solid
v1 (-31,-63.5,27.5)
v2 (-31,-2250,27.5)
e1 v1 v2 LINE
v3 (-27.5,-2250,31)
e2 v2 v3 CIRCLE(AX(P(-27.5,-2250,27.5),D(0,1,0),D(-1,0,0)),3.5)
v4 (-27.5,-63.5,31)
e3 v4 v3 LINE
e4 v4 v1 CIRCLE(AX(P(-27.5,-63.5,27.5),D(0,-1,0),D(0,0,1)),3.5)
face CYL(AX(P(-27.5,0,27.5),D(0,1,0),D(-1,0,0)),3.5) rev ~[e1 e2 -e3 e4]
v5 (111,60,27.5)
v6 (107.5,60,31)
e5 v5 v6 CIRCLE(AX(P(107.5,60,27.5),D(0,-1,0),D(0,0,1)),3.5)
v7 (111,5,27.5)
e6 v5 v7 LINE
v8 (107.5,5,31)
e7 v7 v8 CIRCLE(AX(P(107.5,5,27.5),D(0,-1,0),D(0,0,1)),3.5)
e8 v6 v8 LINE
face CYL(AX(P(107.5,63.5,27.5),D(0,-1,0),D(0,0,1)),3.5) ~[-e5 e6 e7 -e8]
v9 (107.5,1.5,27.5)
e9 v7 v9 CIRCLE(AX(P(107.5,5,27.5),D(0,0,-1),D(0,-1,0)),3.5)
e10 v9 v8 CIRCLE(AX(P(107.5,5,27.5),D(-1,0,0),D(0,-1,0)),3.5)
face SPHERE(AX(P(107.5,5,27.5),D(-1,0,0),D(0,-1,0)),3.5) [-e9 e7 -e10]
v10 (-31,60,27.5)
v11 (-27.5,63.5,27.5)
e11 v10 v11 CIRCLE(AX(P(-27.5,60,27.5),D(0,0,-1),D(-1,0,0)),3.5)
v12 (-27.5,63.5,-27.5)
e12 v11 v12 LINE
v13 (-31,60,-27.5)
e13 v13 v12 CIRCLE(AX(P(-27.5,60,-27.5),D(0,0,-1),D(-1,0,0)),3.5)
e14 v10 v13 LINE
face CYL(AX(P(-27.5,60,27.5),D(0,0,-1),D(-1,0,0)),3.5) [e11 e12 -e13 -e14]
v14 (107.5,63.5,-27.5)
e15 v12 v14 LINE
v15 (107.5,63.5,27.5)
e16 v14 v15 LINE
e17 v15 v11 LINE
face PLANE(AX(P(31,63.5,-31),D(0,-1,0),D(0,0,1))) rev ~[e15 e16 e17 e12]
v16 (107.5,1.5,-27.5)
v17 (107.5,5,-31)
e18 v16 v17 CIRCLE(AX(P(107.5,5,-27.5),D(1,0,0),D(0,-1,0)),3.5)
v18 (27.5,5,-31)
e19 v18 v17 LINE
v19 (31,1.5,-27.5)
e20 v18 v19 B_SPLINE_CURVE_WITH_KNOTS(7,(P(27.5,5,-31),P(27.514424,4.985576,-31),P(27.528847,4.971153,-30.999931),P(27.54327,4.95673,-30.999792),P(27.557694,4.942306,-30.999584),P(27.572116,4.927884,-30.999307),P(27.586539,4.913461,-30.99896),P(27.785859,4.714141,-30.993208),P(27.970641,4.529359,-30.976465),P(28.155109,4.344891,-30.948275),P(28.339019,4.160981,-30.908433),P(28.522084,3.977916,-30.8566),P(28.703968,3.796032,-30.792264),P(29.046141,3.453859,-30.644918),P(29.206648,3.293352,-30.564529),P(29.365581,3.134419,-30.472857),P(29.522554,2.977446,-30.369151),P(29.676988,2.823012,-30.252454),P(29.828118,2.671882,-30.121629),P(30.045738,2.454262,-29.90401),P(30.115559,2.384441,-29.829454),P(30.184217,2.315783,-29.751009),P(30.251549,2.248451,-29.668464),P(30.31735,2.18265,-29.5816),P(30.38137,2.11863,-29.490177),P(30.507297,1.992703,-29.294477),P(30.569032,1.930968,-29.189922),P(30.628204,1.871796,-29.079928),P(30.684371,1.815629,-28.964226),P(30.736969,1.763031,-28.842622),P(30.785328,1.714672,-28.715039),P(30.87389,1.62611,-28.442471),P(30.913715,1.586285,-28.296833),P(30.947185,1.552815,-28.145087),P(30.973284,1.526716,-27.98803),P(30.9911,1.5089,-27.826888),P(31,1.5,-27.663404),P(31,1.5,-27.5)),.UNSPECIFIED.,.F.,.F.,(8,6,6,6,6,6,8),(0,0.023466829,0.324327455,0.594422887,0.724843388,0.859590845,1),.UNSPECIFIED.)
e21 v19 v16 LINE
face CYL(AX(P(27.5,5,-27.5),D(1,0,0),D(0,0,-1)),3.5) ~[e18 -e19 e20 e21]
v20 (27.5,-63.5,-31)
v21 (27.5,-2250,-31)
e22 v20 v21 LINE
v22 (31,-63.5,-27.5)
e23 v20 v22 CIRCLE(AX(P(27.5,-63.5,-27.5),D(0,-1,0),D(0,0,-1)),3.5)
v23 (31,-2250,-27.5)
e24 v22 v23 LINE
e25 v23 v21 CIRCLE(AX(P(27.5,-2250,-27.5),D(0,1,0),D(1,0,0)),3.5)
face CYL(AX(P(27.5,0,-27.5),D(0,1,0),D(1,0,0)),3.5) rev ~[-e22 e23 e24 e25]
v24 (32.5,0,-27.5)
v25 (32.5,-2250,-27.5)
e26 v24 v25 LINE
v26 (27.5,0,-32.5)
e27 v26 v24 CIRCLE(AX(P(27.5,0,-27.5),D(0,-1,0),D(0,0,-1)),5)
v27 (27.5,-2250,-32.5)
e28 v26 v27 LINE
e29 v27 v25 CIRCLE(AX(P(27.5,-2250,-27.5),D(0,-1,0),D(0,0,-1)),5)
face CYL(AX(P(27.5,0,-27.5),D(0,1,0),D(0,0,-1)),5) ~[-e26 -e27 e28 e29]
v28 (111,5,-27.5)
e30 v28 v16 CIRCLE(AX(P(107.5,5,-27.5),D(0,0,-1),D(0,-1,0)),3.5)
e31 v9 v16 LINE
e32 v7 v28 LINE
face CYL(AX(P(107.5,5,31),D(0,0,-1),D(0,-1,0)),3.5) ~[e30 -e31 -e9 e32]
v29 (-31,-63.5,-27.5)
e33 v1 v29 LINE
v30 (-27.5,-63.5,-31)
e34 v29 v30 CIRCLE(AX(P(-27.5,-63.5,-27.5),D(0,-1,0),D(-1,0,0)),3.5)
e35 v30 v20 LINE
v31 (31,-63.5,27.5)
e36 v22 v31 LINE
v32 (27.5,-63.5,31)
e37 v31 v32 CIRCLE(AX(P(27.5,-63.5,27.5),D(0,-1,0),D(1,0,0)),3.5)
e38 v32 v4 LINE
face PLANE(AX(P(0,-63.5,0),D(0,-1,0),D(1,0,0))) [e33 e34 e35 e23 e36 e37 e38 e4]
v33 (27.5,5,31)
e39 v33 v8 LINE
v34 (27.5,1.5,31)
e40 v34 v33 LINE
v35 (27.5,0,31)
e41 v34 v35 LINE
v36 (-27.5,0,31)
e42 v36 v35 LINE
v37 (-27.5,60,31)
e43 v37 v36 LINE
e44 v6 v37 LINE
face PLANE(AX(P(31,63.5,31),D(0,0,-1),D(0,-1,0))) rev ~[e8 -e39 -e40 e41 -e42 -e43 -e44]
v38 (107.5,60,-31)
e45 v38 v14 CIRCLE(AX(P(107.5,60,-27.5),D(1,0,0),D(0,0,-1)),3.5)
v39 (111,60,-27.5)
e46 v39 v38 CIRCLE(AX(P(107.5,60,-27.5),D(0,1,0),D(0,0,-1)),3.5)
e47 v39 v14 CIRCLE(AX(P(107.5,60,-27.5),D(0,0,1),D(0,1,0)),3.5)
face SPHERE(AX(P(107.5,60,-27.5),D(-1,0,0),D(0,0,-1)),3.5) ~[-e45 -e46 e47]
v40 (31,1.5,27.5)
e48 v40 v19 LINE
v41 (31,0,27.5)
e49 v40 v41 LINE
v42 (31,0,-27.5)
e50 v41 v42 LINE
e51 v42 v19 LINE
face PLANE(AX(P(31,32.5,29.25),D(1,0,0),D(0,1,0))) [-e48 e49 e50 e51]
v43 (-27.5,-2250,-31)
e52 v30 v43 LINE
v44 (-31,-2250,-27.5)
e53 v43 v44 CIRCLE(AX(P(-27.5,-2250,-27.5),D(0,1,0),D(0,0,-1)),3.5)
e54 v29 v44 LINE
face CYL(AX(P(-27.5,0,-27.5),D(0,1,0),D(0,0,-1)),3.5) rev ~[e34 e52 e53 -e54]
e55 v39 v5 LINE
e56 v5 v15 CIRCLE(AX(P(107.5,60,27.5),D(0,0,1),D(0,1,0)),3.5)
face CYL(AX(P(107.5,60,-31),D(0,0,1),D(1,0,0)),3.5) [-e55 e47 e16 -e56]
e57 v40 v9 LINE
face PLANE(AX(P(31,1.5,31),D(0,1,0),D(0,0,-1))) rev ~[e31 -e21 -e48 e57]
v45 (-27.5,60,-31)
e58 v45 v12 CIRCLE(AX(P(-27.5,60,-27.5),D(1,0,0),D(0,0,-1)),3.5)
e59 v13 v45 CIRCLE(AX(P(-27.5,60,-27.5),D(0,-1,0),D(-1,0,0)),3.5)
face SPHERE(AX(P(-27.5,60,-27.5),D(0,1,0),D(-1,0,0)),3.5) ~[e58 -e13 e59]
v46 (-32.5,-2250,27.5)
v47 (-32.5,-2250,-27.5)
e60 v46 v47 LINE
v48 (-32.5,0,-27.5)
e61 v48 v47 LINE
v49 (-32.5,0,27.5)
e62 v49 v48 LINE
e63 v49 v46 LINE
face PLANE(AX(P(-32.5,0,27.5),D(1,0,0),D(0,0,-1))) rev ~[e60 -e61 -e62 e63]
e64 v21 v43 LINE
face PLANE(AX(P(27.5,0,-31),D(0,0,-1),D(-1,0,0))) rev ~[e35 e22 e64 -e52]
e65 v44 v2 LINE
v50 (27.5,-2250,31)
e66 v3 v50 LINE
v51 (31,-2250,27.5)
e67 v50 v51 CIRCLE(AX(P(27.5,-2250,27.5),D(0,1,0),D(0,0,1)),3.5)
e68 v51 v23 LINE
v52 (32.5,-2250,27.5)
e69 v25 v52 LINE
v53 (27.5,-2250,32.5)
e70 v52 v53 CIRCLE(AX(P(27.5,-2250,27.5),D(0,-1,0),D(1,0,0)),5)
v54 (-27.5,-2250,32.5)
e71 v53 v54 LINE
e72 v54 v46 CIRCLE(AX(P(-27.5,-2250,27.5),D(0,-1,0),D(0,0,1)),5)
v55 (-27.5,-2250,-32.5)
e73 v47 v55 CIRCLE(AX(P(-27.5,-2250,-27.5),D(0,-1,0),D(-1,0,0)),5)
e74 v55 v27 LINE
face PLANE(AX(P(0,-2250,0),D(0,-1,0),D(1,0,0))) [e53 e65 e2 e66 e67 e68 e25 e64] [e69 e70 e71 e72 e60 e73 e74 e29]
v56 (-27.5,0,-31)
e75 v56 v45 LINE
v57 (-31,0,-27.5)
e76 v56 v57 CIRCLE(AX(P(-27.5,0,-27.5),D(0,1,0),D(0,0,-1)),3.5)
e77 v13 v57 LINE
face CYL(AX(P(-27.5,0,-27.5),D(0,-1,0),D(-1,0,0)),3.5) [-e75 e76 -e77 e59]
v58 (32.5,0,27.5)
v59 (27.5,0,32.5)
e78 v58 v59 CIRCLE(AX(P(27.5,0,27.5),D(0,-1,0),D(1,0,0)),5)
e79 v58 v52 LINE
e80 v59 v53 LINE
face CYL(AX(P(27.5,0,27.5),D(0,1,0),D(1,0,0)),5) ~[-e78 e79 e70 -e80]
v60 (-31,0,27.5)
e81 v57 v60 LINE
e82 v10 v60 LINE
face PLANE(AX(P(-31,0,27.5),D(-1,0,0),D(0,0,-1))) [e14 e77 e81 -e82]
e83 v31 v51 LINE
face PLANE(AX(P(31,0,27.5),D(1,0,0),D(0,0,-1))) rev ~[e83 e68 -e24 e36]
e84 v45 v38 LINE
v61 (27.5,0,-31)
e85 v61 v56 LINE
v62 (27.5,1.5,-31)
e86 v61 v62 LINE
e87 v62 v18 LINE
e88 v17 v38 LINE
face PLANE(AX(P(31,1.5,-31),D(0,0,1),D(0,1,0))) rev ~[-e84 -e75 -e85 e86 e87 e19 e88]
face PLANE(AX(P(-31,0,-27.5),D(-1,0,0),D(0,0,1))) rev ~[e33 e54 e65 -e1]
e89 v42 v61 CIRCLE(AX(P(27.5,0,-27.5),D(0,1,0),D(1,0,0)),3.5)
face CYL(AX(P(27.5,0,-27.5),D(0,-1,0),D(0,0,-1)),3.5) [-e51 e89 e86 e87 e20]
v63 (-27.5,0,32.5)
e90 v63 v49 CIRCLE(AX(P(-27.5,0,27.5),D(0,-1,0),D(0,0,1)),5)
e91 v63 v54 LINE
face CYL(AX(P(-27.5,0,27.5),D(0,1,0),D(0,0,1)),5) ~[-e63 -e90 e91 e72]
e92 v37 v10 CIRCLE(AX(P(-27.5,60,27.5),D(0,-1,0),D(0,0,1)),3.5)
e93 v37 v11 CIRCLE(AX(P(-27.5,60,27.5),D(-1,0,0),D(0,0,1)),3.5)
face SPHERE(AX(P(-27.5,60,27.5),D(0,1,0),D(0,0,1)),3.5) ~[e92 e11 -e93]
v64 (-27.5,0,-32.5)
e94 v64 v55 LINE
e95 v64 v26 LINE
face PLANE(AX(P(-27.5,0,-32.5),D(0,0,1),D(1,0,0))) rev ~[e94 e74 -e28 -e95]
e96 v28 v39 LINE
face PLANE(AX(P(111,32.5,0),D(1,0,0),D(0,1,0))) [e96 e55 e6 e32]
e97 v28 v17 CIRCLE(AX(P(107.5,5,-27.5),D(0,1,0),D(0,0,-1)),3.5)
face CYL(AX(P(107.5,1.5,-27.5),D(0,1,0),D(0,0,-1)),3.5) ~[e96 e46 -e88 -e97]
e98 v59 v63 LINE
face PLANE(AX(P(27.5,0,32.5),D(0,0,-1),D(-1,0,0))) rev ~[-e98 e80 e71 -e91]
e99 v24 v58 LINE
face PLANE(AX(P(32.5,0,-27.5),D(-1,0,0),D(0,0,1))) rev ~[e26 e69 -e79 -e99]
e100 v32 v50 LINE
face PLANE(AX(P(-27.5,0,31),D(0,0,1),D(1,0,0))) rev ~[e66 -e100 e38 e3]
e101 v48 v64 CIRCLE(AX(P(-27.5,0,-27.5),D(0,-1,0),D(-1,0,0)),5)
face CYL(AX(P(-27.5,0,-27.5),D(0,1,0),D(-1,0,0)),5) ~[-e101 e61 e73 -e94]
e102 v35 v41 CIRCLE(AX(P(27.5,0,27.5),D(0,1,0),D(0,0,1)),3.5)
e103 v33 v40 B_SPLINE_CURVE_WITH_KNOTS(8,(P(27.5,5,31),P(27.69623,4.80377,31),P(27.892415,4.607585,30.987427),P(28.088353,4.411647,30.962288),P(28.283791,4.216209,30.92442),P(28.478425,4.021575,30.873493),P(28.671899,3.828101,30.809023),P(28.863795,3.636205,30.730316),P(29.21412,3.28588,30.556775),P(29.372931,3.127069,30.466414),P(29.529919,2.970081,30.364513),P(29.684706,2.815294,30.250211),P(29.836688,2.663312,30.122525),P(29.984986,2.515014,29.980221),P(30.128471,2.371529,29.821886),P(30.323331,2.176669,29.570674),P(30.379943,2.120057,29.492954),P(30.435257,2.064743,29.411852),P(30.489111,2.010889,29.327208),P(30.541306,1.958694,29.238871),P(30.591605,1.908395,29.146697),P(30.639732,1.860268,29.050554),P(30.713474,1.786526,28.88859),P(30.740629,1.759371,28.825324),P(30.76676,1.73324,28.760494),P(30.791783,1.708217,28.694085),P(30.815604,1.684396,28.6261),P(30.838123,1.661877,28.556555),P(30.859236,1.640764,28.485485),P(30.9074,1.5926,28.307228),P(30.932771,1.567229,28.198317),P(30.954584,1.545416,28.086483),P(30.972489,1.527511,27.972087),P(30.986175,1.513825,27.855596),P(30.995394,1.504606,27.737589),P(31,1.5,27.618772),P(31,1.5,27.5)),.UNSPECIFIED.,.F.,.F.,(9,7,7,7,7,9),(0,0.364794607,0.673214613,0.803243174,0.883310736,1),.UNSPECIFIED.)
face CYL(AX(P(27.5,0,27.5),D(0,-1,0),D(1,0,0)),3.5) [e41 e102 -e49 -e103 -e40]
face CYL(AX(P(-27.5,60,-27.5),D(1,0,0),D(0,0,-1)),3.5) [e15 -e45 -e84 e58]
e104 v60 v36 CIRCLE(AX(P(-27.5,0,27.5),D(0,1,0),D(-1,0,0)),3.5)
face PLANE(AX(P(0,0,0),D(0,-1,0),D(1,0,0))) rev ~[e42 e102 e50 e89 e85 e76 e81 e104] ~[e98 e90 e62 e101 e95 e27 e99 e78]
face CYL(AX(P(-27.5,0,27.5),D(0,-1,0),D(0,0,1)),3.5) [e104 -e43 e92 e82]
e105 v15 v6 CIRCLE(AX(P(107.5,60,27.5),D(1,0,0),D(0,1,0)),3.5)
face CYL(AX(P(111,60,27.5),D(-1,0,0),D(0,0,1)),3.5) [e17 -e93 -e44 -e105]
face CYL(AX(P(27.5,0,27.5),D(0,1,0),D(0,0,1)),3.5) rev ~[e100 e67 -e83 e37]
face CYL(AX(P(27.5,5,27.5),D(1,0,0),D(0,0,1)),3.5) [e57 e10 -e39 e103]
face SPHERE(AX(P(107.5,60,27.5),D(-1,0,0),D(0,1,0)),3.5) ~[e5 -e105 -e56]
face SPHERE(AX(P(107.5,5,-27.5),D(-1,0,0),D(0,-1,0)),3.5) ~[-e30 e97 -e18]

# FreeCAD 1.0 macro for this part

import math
import FreeCAD as App
import Part
import Sketcher

V = App.Vector


def edges_at(feature, points):
    """Names of the edges that pass closest to the given points."""
    edges = feature.Shape.Edges
    near = lambda p: min(range(len(edges)), key=lambda i: edges[i].distToShape(Part.Vertex(*p))[0])
    return sorted({f"Edge{near(p) + 1}" for p in points})

doc = App.newDocument("Part")
body = doc.addObject("PartDesign::Body", "Body")

# Sketch on XZ plane
sketch1 = body.newObject("Sketcher::SketchObject", "Sketch")
sketch1.AttachmentSupport = (doc.getObject("XZ_Plane"), [""])
sketch1.MapMode = "FlatFace"
sketch1.addGeometry([
    Part.ArcOfCircle(Part.Circle(V(27.5, 27.5, 0), V(0, 0, 1), 5), math.radians(0), math.radians(90)),  # 0
    Part.LineSegment(V(27.5, 32.5, 0), V(-27.5, 32.5, 0)),  # 1
    Part.ArcOfCircle(Part.Circle(V(-27.5, 27.5, 0), V(0, 0, 1), 5), math.radians(90), math.radians(180)),  # 2
    Part.LineSegment(V(-32.5, 27.5, 0), V(-32.5, -27.5, 0)),  # 3
    Part.ArcOfCircle(Part.Circle(V(-27.5, -27.5, 0), V(0, 0, 1), 5), math.radians(180), math.radians(270)),  # 4
    Part.LineSegment(V(-27.5, -32.5, 0), V(27.5, -32.5, 0)),  # 5
    Part.ArcOfCircle(Part.Circle(V(27.5, -27.5, 0), V(0, 0, 1), 5), math.radians(-90), math.radians(0)),  # 6
    Part.LineSegment(V(32.5, -27.5, 0), V(32.5, 27.5, 0)),  # 7
    Part.LineSegment(V(-27.5, 31, 0), V(27.5, 31, 0)),  # 8
    Part.ArcOfCircle(Part.Circle(V(27.5, 27.5, 0), V(0, 0, 1), 3.5), math.radians(0), math.radians(90)),  # 9
    Part.LineSegment(V(31, 27.5, 0), V(31, -27.5, 0)),  # 10
    Part.ArcOfCircle(Part.Circle(V(27.5, -27.5, 0), V(0, 0, 1), 3.5), math.radians(-90), math.radians(0)),  # 11
    Part.LineSegment(V(27.5, -31, 0), V(-27.5, -31, 0)),  # 12
    Part.ArcOfCircle(Part.Circle(V(-27.5, -27.5, 0), V(0, 0, 1), 3.5), math.radians(180), math.radians(270)),  # 13
    Part.LineSegment(V(-31, -27.5, 0), V(-31, 27.5, 0)),  # 14
    Part.ArcOfCircle(Part.Circle(V(-27.5, 27.5, 0), V(0, 0, 1), 3.5), math.radians(90), math.radians(180)),  # 15
], False)
sketch1.addConstraint([
    Sketcher.Constraint("Tangent", 0, 2, 1, 1),
    Sketcher.Constraint("Tangent", 1, 2, 2, 1),
    Sketcher.Constraint("Tangent", 2, 2, 3, 1),
    Sketcher.Constraint("Tangent", 3, 2, 4, 1),
    Sketcher.Constraint("Tangent", 4, 2, 5, 1),
    Sketcher.Constraint("Tangent", 5, 2, 6, 1),
    Sketcher.Constraint("Tangent", 6, 2, 7, 1),
    Sketcher.Constraint("Tangent", 7, 2, 0, 1),
    Sketcher.Constraint("Tangent", 8, 2, 9, 2),
    Sketcher.Constraint("Tangent", 9, 1, 10, 1),
    Sketcher.Constraint("Tangent", 10, 2, 11, 2),
    Sketcher.Constraint("Tangent", 11, 1, 12, 1),
    Sketcher.Constraint("Tangent", 12, 2, 13, 2),
    Sketcher.Constraint("Tangent", 13, 1, 14, 1),
    Sketcher.Constraint("Tangent", 14, 2, 15, 2),
    Sketcher.Constraint("Tangent", 15, 1, 8, 1),
    Sketcher.Constraint("Horizontal", 1),
    Sketcher.Constraint("Vertical", 3),
    Sketcher.Constraint("Horizontal", 5),
    Sketcher.Constraint("Vertical", 7),
    Sketcher.Constraint("Horizontal", 8),
    Sketcher.Constraint("Vertical", 10),
    Sketcher.Constraint("Horizontal", 12),
    Sketcher.Constraint("Vertical", 14),
    Sketcher.Constraint("Coincident", 9, 3, 0, 3),
    Sketcher.Constraint("Coincident", 11, 3, 6, 3),
    Sketcher.Constraint("Coincident", 13, 3, 4, 3),
    Sketcher.Constraint("Equal", 0, 2),
    Sketcher.Constraint("Equal", 2, 4),
    Sketcher.Constraint("Equal", 4, 6),
    Sketcher.Constraint("Equal", 13, 15),
    Sketcher.Constraint("Symmetric", 0, 3, 4, 3, -1, 1),
    Sketcher.Constraint("Equal", 12, 3),
    Sketcher.Constraint("Radius", 0, 5.0),
    Sketcher.Constraint("Radius", 9, 3.5),
    Sketcher.Constraint("DistanceX", 1, 2, 1, 1, 55.0),
])
pad1 = body.newObject("PartDesign::Pad", "Pad")
pad1.Profile = sketch1
pad1.Length = 2250

# Sketch on XZ plane
sketch2 = body.newObject("Sketcher::SketchObject", "Sketch001")
sketch2.AttachmentSupport = (doc.getObject("XZ_Plane"), [""])
sketch2.MapMode = "FlatFace"
sketch2.addGeometry([
    Part.LineSegment(V(31, -27.5, 0), V(31, 27.5, 0)),  # 0
    Part.ArcOfCircle(Part.Circle(V(27.5, 27.5, 0), V(0, 0, 1), 3.5), math.radians(0), math.radians(90)),  # 1
    Part.LineSegment(V(27.5, 31, 0), V(-27.5, 31, 0)),  # 2
    Part.ArcOfCircle(Part.Circle(V(-27.5, 27.5, 0), V(0, 0, 1), 3.5), math.radians(90), math.radians(180)),  # 3
    Part.LineSegment(V(-31, 27.5, 0), V(-31, -27.5, 0)),  # 4
    Part.ArcOfCircle(Part.Circle(V(-27.5, -27.5, 0), V(0, 0, 1), 3.5), math.radians(180), math.radians(270)),  # 5
    Part.LineSegment(V(-27.5, -31, 0), V(27.5, -31, 0)),  # 6
    Part.ArcOfCircle(Part.Circle(V(27.5, -27.5, 0), V(0, 0, 1), 3.5), math.radians(-90), math.radians(0)),  # 7
], False)
sketch2.addConstraint([
    Sketcher.Constraint("Tangent", 0, 2, 1, 1),
    Sketcher.Constraint("Tangent", 1, 2, 2, 1),
    Sketcher.Constraint("Tangent", 2, 2, 3, 1),
    Sketcher.Constraint("Tangent", 3, 2, 4, 1),
    Sketcher.Constraint("Tangent", 4, 2, 5, 1),
    Sketcher.Constraint("Tangent", 5, 2, 6, 1),
    Sketcher.Constraint("Tangent", 6, 2, 7, 1),
    Sketcher.Constraint("Tangent", 7, 2, 0, 1),
    Sketcher.Constraint("Vertical", 0),
    Sketcher.Constraint("Horizontal", 2),
    Sketcher.Constraint("Vertical", 4),
    Sketcher.Constraint("Horizontal", 6),
    Sketcher.Constraint("Equal", 1, 3),
    Sketcher.Constraint("Equal", 3, 5),
    Sketcher.Constraint("Equal", 5, 7),
    Sketcher.Constraint("Symmetric", 1, 3, 5, 3, -1, 1),
    Sketcher.Constraint("Equal", 6, 0),
    Sketcher.Constraint("Radius", 1, 3.5),
    Sketcher.Constraint("DistanceX", 2, 2, 2, 1, 55.0),
])
pad2 = body.newObject("PartDesign::Pad", "Pad001")
pad2.Profile = sketch2
pad2.Length = 127
pad2.Midplane = True

# Sketch on YZ plane
sketch3 = body.newObject("Sketcher::SketchObject", "Sketch002")
sketch3.AttachmentSupport = (doc.getObject("YZ_Plane"), [""])
sketch3.MapMode = "FlatFace"
sketch3.AttachmentOffset = App.Placement(V(0, 0, 31), App.Rotation())
sketch3.addGeometry([
    Part.LineSegment(V(2, 31, 0), V(2, -31, 0)),
    Part.LineSegment(V(2, -31, 0), V(64, -31, 0)),
    Part.LineSegment(V(64, -31, 0), V(64, 31, 0)),
    Part.LineSegment(V(64, 31, 0), V(2, 31, 0)),
], False)
sketch3.addConstraint([
    Sketcher.Constraint("Coincident", 0, 2, 1, 1),
    Sketcher.Constraint("Coincident", 1, 2, 2, 1),
    Sketcher.Constraint("Coincident", 2, 2, 3, 1),
    Sketcher.Constraint("Coincident", 3, 2, 0, 1),
    Sketcher.Constraint("Vertical", 0),
    Sketcher.Constraint("Horizontal", 1),
    Sketcher.Constraint("Vertical", 2),
    Sketcher.Constraint("Horizontal", 3),
    Sketcher.Constraint("Equal", 3, 0),
    Sketcher.Constraint("DistanceX", 1, 1, 1, 2, 62.0),
    Sketcher.Constraint("DistanceY", 0, 2, -1, 1, 31.0),
    Sketcher.Constraint("DistanceX", -1, 1, 0, 2, 1.5),
])
pad3 = body.newObject("PartDesign::Pad", "Pad002")
pad3.Profile = sketch3
pad3.Length = 25
pad3.Reversed = True

# Sketch on YZ plane
sketch4 = body.newObject("Sketcher::SketchObject", "Sketch003")
sketch4.AttachmentSupport = (doc.getObject("YZ_Plane"), [""])
sketch4.MapMode = "FlatFace"
sketch4.AttachmentOffset = App.Placement(V(0, 0, 31), App.Rotation())
sketch4.addGeometry([
    Part.LineSegment(V(64, 31, 0), V(2, 31, 0)),
    Part.LineSegment(V(2, 31, 0), V(2, -31, 0)),
    Part.LineSegment(V(2, -31, 0), V(64, -31, 0)),
    Part.LineSegment(V(64, -31, 0), V(64, 31, 0)),
], False)
sketch4.addConstraint([
    Sketcher.Constraint("Coincident", 0, 2, 1, 1),
    Sketcher.Constraint("Coincident", 1, 2, 2, 1),
    Sketcher.Constraint("Coincident", 2, 2, 3, 1),
    Sketcher.Constraint("Coincident", 3, 2, 0, 1),
    Sketcher.Constraint("Horizontal", 0),
    Sketcher.Constraint("Vertical", 1),
    Sketcher.Constraint("Horizontal", 2),
    Sketcher.Constraint("Vertical", 3),
    Sketcher.Constraint("Equal", 2, 1),
    Sketcher.Constraint("DistanceX", 0, 2, 0, 1, 62.0),
    Sketcher.Constraint("DistanceY", -1, 1, 0, 2, 31.0),
    Sketcher.Constraint("DistanceX", -1, 1, 0, 2, 1.5),
])
pad4 = body.newObject("PartDesign::Pad", "Pad003")
pad4.Profile = sketch4
pad4.Length = 80
doc.recompute()

fillet = body.newObject("PartDesign::Fillet", "Fillet")
fillet.Base = (pad4, edges_at(pad4, [
    (41.75, 63.5, 31),
    (69.25, 1.5, 31),
    (69.25, 1.5, -31),
    (111, 1.5, 0),
    (111, 32.5, -31),
    (111, 63.5, 0),
    (111, 32.5, 31),
    (41.75, 63.5, -31),
]))
fillet.Radius = 3.5

doc.recompute()
